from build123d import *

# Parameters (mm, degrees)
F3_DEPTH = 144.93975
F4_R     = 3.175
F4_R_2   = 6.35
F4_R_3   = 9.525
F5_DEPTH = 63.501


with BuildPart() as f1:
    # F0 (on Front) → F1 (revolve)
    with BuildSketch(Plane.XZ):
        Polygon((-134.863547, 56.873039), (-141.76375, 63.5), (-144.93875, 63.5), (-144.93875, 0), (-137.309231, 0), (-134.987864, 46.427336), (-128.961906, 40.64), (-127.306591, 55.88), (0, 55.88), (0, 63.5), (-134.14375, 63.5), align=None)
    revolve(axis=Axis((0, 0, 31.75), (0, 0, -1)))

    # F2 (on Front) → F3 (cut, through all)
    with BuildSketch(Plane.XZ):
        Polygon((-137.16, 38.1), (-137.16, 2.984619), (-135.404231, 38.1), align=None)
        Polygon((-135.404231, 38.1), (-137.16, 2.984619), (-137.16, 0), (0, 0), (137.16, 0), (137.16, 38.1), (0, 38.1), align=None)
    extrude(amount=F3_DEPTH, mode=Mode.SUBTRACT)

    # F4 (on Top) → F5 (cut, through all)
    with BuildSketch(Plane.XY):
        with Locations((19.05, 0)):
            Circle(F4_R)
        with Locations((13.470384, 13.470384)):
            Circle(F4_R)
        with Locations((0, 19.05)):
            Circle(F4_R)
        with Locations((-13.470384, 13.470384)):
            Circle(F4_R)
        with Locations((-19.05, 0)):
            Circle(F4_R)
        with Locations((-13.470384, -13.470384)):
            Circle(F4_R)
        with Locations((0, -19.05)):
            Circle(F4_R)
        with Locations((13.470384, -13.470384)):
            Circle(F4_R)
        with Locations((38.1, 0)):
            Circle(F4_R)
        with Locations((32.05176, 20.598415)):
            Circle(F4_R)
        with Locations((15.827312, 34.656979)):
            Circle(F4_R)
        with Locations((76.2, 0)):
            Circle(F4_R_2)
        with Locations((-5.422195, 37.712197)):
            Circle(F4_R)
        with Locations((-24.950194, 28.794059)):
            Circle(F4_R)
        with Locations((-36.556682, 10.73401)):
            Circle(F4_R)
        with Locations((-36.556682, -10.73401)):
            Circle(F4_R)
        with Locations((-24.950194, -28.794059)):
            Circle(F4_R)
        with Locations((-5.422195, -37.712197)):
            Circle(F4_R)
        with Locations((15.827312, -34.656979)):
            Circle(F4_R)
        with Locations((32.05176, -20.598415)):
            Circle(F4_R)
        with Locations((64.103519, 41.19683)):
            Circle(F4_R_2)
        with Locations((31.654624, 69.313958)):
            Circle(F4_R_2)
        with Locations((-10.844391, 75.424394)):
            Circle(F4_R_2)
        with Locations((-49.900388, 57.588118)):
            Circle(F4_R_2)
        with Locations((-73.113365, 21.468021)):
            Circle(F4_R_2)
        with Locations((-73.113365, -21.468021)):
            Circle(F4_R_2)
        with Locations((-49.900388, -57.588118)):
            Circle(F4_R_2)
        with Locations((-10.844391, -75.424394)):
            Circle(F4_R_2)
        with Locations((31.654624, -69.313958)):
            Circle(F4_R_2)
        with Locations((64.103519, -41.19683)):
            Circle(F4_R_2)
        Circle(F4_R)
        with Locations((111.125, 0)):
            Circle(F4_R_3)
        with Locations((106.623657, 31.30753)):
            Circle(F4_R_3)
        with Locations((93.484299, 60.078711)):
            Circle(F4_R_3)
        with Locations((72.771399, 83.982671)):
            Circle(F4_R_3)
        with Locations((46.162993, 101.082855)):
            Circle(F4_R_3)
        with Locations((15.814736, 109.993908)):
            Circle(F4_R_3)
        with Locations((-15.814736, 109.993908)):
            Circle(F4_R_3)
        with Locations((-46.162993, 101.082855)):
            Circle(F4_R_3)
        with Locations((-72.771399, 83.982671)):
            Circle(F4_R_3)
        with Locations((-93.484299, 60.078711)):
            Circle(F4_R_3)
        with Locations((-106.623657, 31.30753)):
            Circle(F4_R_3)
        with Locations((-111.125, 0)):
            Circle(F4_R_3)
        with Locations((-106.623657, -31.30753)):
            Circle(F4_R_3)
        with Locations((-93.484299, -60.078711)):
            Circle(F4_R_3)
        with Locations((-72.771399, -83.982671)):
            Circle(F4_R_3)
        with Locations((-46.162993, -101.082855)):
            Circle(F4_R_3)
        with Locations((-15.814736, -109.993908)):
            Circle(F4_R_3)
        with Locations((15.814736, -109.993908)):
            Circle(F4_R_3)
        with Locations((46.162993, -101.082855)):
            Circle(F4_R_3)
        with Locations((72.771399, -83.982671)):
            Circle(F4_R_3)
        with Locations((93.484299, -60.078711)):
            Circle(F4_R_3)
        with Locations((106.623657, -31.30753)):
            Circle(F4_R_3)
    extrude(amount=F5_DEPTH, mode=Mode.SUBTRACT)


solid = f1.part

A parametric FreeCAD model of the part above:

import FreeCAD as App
import Part
import Sketcher
from FreeCAD import Vector
Q = App.Units.Quantity


def add_polygon(sketch, points):
    """Adds a closed chain of lines whose ends are joined by coincident constraints."""
    first, n = sketch.GeometryCount, len(points)
    for a, b in zip(points, points[1:] + points[:1]):
        sketch.addGeometry(Part.LineSegment(App.Vector(*a, 0), App.Vector(*b, 0)), False)
    for i in range(n):
        sketch.addConstraint(Sketcher.Constraint("Coincident", first + i, 2, first + (i + 1) % n, 1))

doc = App.newDocument("Part")
body = doc.addObject("PartDesign::Body", "Body")

# Sketch on XZ plane
sketch1 = body.newObject("Sketcher::SketchObject", "Sketch")
sketch1.AttachmentSupport = (doc.getObject("XZ_Plane"), [""])
sketch1.MapMode = "FlatFace"
add_polygon(sketch1, [(-134.9, 56.9), (-141.8, 63.5), (-144.9, 63.5), (-144.9, 0), (-137.3, 0), (-135, 46.4), (-129, 40.6), (-127.3, 55.9), (0, 55.9), (0, 63.5), (-134.1, 63.5)])  # lines 0-10
sketch1.addConstraint([
    Sketcher.Constraint("Horizontal", 1),
    Sketcher.Constraint("Vertical", 2),
    Sketcher.Constraint("Horizontal", 3),
    Sketcher.Constraint("Horizontal", 7),
    Sketcher.Constraint("Vertical", 8),
    Sketcher.Constraint("Horizontal", 9),
    Sketcher.Constraint("PointOnObject", 2, 2, -1),
    Sketcher.Constraint("PointOnObject", 7, 2, -2),
    Sketcher.Constraint("Parallel", 0, 5),
    Sketcher.Constraint("Parallel", 6, 10),
    Sketcher.Constraint("Horizontal", 1, 2, 8, 2),
    Sketcher.Constraint("DistanceY", 2, 2, 2, 1, Q("2.5 in")),
    Sketcher.Constraint("DistanceY", 8, 1, 8, 2, Q("0.3 in")),
    Sketcher.Constraint("DistanceY", -1, 1, 5, 2, Q("1.6 in")),
    Sketcher.Constraint("DistanceX", 0, 2, 9, 2, Q("0.3 in")),
    Sketcher.Constraint("DistanceX", 1, 2, 1, 1, Q("0.125 in")),
    Sketcher.Constraint("DistanceX", 9, 2, 9, 1, Q("5.28125 in")),
    Sketcher.Constraint("Distance", 0, Q("9.567101 mm")),
    Sketcher.Constraint("DistanceX", 3, 1, 3, 2, Q("7.629519 mm")),
    Sketcher.Constraint("DistanceX", 7, 1, 7, 2, Q("127.306591 mm")),
    Sketcher.Constraint("DistanceY", -1, 1, 10, 2, Q("56.873039 mm")),
    Sketcher.Constraint("DistanceX", 4, 2, 5, 2, Q("6.025958 mm")),
])
revolution = body.newObject("PartDesign::Revolution", "Revolution")
revolution.Profile = sketch1
revolution.ReferenceAxis = (sketch1, ["V_Axis"])
revolution.Angle = 360

# Sketch on XZ plane
sketch2 = body.newObject("Sketcher::SketchObject", "Sketch001")
sketch2.AttachmentSupport = (doc.getObject("XZ_Plane"), [""])
sketch2.MapMode = "FlatFace"
add_polygon(sketch2, [(-137, 38), (-137, 0), (137, 0), (137, 38)])  # lines 0-3
sketch2.addConstraint([
    Sketcher.Constraint("Vertical", 0),
    Sketcher.Constraint("Horizontal", 1),
    Sketcher.Constraint("Vertical", 2),
    Sketcher.Constraint("Horizontal", 3),
    Sketcher.Constraint("Symmetric", 0, 2, 1, 2, -1, 1),
    Sketcher.Constraint("DistanceX", 1, 1, 1, 2, Q("10.8 in")),
    Sketcher.Constraint("DistanceY", 0, 2, 0, 1, Q("1.5 in")),
])
pocket1 = body.newObject("PartDesign::Pocket", "Pocket")
pocket1.Profile = sketch2
pocket1.Type = "ThroughAll"
pocket1.Reversed = True

# Sketch on XY plane
sketch3 = body.newObject("Sketcher::SketchObject", "Sketch002")
sketch3.AttachmentSupport = (doc.getObject("XY_Plane"), [""])
sketch3.MapMode = "FlatFace"
sketch3.addGeometry([
    Part.Circle(Vector(19.1, 0, 0), Vector(0, 0, 1), 3.2),  # 0
    Part.Circle(Vector(13.5, 13.5, 0), Vector(0, 0, 1), 3.2),  # 1
    Part.Circle(Vector(0, 19.1, 0), Vector(0, 0, 1), 3.2),  # 2
    Part.Circle(Vector(-13.5, 13.5, 0), Vector(0, 0, 1), 3.2),  # 3
    Part.Circle(Vector(-19.1, 0, 0), Vector(0, 0, 1), 3.2),  # 4
    Part.Circle(Vector(-13.5, -13.5, 0), Vector(0, 0, 1), 3.2),  # 5
    Part.Circle(Vector(0, -19.1, 0), Vector(0, 0, 1), 3.2),  # 6
    Part.Circle(Vector(13.5, -13.5, 0), Vector(0, 0, 1), 3.2),  # 7
    Part.Circle(Vector(38.1, 0, 0), Vector(0, 0, 1), 3.2),  # 8
    Part.Circle(Vector(32.1, 20.6, 0), Vector(0, 0, 1), 3.2),  # 9
    Part.Circle(Vector(15.8, 34.7, 0), Vector(0, 0, 1), 3.2),  # 10
    Part.Circle(Vector(76.2, 0, 0), Vector(0, 0, 1), 6.3),  # 11
    Part.Circle(Vector(-5.4, 37.7, 0), Vector(0, 0, 1), 3.2),  # 12
    Part.Circle(Vector(-25, 28.8, 0), Vector(0, 0, 1), 3.2),  # 13
    Part.Circle(Vector(-36.6, 10.7, 0), Vector(0, 0, 1), 3.2),  # 14
    Part.Circle(Vector(-36.6, -10.7, 0), Vector(0, 0, 1), 3.2),  # 15
    Part.Circle(Vector(-25, -28.8, 0), Vector(0, 0, 1), 3.2),  # 16
    Part.Circle(Vector(-5.4, -37.7, 0), Vector(0, 0, 1), 3.2),  # 17
    Part.Circle(Vector(15.8, -34.7, 0), Vector(0, 0, 1), 3.2),  # 18
    Part.Circle(Vector(32.1, -20.6, 0), Vector(0, 0, 1), 3.2),  # 19
    Part.Circle(Vector(64.1, 41.2, 0), Vector(0, 0, 1), 6.3),  # 20
    Part.Circle(Vector(31.7, 69.3, 0), Vector(0, 0, 1), 6.3),  # 21
    Part.Circle(Vector(-10.8, 75.4, 0), Vector(0, 0, 1), 6.3),  # 22
    Part.Circle(Vector(-49.9, 57.6, 0), Vector(0, 0, 1), 6.3),  # 23
    Part.Circle(Vector(-73.1, 21.5, 0), Vector(0, 0, 1), 6.3),  # 24
    Part.Circle(Vector(-73.1, -21.5, 0), Vector(0, 0, 1), 6.3),  # 25
    Part.Circle(Vector(-49.9, -57.6, 0), Vector(0, 0, 1), 6.3),  # 26
    Part.Circle(Vector(-10.8, -75.4, 0), Vector(0, 0, 1), 6.3),  # 27
    Part.Circle(Vector(31.7, -69.3, 0), Vector(0, 0, 1), 6.3),  # 28
    Part.Circle(Vector(64.1, -41.2, 0), Vector(0, 0, 1), 6.3),  # 29
    Part.Circle(Vector(0, 0, 0), Vector(0, 0, 1), 3.2),  # 30
    Part.Circle(Vector(111.1, 0, 0), Vector(0, 0, 1), 9.5),  # 31
    Part.Circle(Vector(106.6, 31.3, 0), Vector(0, 0, 1), 9.5),  # 32
    Part.Circle(Vector(93.5, 60.1, 0), Vector(0, 0, 1), 9.5),  # 33
    Part.Circle(Vector(72.8, 84, 0), Vector(0, 0, 1), 9.5),  # 34
    Part.Circle(Vector(46.2, 101.1, 0), Vector(0, 0, 1), 9.5),  # 35
    Part.Circle(Vector(15.8, 110, 0), Vector(0, 0, 1), 9.5),  # 36
    Part.Circle(Vector(-15.8, 110, 0), Vector(0, 0, 1), 9.5),  # 37
    Part.Circle(Vector(-46.2, 101.1, 0), Vector(0, 0, 1), 9.5),  # 38
    Part.Circle(Vector(-72.8, 84, 0), Vector(0, 0, 1), 9.5),  # 39
    Part.Circle(Vector(-93.5, 60.1, 0), Vector(0, 0, 1), 9.5),  # 40
    Part.Circle(Vector(-106.6, 31.3, 0), Vector(0, 0, 1), 9.5),  # 41
    Part.Circle(Vector(-111.1, 0, 0), Vector(0, 0, 1), 9.5),  # 42
    Part.Circle(Vector(-106.6, -31.3, 0), Vector(0, 0, 1), 9.5),  # 43
    Part.Circle(Vector(-93.5, -60.1, 0), Vector(0, 0, 1), 9.5),  # 44
    Part.Circle(Vector(-72.8, -84, 0), Vector(0, 0, 1), 9.5),  # 45
    Part.Circle(Vector(-46.2, -101.1, 0), Vector(0, 0, 1), 9.5),  # 46
    Part.Circle(Vector(-15.8, -110, 0), Vector(0, 0, 1), 9.5),  # 47
    Part.Circle(Vector(15.8, -110, 0), Vector(0, 0, 1), 9.5),  # 48
    Part.Circle(Vector(46.2, -101.1, 0), Vector(0, 0, 1), 9.5),  # 49
    Part.Circle(Vector(72.8, -84, 0), Vector(0, 0, 1), 9.5),  # 50
    Part.Circle(Vector(93.5, -60.1, 0), Vector(0, 0, 1), 9.5),  # 51
    Part.Circle(Vector(106.6, -31.3, 0), Vector(0, 0, 1), 9.5),  # 52
], False)
sketch3.addConstraint([
    Sketcher.Constraint("Coincident", 30, 3, -1, 1),
    Sketcher.Constraint("Equal", 0, 1),
    Sketcher.Constraint("Equal", 1, 2),
    Sketcher.Constraint("Equal", 2, 3),
    Sketcher.Constraint("Equal", 3, 4),
    Sketcher.Constraint("Equal", 4, 5),
    Sketcher.Constraint("Equal", 5, 6),
    Sketcher.Constraint("Equal", 6, 7),
    Sketcher.Constraint("Equal", 7, 8),
    Sketcher.Constraint("Equal", 8, 9),
    Sketcher.Constraint("Equal", 9, 10),
    Sketcher.Constraint("Equal", 10, 12),
    Sketcher.Constraint("Equal", 12, 13),
    Sketcher.Constraint("Equal", 13, 14),
    Sketcher.Constraint("Equal", 14, 15),
    Sketcher.Constraint("Equal", 15, 16),
    Sketcher.Constraint("Equal", 16, 17),
    Sketcher.Constraint("Equal", 17, 18),
    Sketcher.Constraint("Equal", 18, 19),
    Sketcher.Constraint("Equal", 11, 20),
    Sketcher.Constraint("Equal", 20, 21),
    Sketcher.Constraint("Equal", 21, 22),
    Sketcher.Constraint("Equal", 22, 23),
    Sketcher.Constraint("Equal", 23, 24),
    Sketcher.Constraint("Equal", 24, 25),
    Sketcher.Constraint("Equal", 25, 26),
    Sketcher.Constraint("Equal", 26, 27),
    Sketcher.Constraint("Equal", 27, 28),
    Sketcher.Constraint("Equal", 28, 29),
    Sketcher.Constraint("Equal", 19, 30),
    Sketcher.Constraint("Equal", 31, 32),
    Sketcher.Constraint("Equal", 32, 33),
    Sketcher.Constraint("Equal", 33, 34),
    Sketcher.Constraint("Equal", 34, 35),
    Sketcher.Constraint("Equal", 35, 36),
    Sketcher.Constraint("Equal", 36, 37),
    Sketcher.Constraint("Equal", 37, 38),
    Sketcher.Constraint("Equal", 38, 39),
    Sketcher.Constraint("Equal", 39, 40),
    Sketcher.Constraint("Equal", 40, 41),
    Sketcher.Constraint("Equal", 41, 42),
    Sketcher.Constraint("Equal", 42, 43),
    Sketcher.Constraint("Equal", 43, 44),
    Sketcher.Constraint("Equal", 44, 45),
    Sketcher.Constraint("Equal", 45, 46),
    Sketcher.Constraint("Equal", 46, 47),
    Sketcher.Constraint("Equal", 47, 48),
    Sketcher.Constraint("Equal", 48, 49),
    Sketcher.Constraint("Equal", 49, 50),
    Sketcher.Constraint("Equal", 50, 51),
    Sketcher.Constraint("Equal", 51, 52),
    Sketcher.Constraint("Symmetric", 0, 3, 4, 3, -1, 1),
    Sketcher.Constraint("Symmetric", 1, 3, 5, 3, -1, 1),
    Sketcher.Constraint("Symmetric", 2, 3, 6, 3, -1, 1),
    Sketcher.Constraint("Symmetric", 3, 3, 7, 3, -1, 1),
    Sketcher.Constraint("Symmetric", 31, 3, 42, 3, -1, 1),
    Sketcher.Constraint("Symmetric", 32, 3, 43, 3, -1, 1),
    Sketcher.Constraint("Symmetric", 33, 3, 44, 3, -1, 1),
    Sketcher.Constraint("Symmetric", 34, 3, 45, 3, -1, 1),
    Sketcher.Constraint("Symmetric", 35, 3, 46, 3, -1, 1),
    Sketcher.Constraint("Symmetric", 36, 3, 47, 3, -1, 1),
    Sketcher.Constraint("Symmetric", 37, 3, 48, 3, -1, 1),
    Sketcher.Constraint("Symmetric", 38, 3, 49, 3, -1, 1),
    Sketcher.Constraint("Symmetric", 39, 3, 50, 3, -1, 1),
    Sketcher.Constraint("Symmetric", 40, 3, 51, 3, -1, 1),
    Sketcher.Constraint("Symmetric", 41, 3, 52, 3, -1, 1),
    Sketcher.Constraint("Symmetric", 1, 3, 3, 3, -2),
    Sketcher.Constraint("Symmetric", 36, 3, 37, 3, -2),
    Sketcher.Constraint("Symmetric", 35, 3, 38, 3, -2),
    Sketcher.Constraint("Symmetric", 34, 3, 39, 3, -2),
    Sketcher.Constraint("Symmetric", 33, 3, 40, 3, -2),
    Sketcher.Constraint("Symmetric", 32, 3, 41, 3, -2),
    Sketcher.Constraint("Symmetric", 14, 3, 15, 3, -1),
    Sketcher.Constraint("Symmetric", 13, 3, 16, 3, -1),
    Sketcher.Constraint("Symmetric", 12, 3, 17, 3, -1),
    Sketcher.Constraint("Symmetric", 10, 3, 18, 3, -1),
    Sketcher.Constraint("Symmetric", 9, 3, 19, 3, -1),
    Sketcher.Constraint("Symmetric", 24, 3, 25, 3, -1),
    Sketcher.Constraint("Symmetric", 23, 3, 26, 3, -1),
    Sketcher.Constraint("Symmetric", 22, 3, 27, 3, -1),
    Sketcher.Constraint("Symmetric", 21, 3, 28, 3, -1),
    Sketcher.Constraint("Symmetric", 20, 3, 29, 3, -1),
    Sketcher.Constraint("PointOnObject", 0, 3, -1),
    Sketcher.Constraint("PointOnObject", 2, 3, -2),
    Sketcher.Constraint("PointOnObject", 8, 3, -1),
    Sketcher.Constraint("PointOnObject", 11, 3, -1),
    Sketcher.Constraint("PointOnObject", 31, 3, -1),
    Sketcher.Constraint("Diameter", 11, Q("0.5 in")),
    Sketcher.Constraint("Diameter", 0, Q("0.25 in")),
    Sketcher.Constraint("Diameter", 31, Q("0.75 in")),
    Sketcher.Constraint("DistanceX", -1, 1, 11, 3, Q("3 in")),
    Sketcher.Constraint("DistanceX", -1, 1, 8, 3, Q("1.5 in")),
    Sketcher.Constraint("DistanceX", 4, 3, 0, 3, Q("1.5 in")),
    Sketcher.Constraint("DistanceY", -1, 1, 2, 3, Q("0.75 in")),
    Sketcher.Constraint("DistanceX", -1, 1, 31, 3, Q("4.375 in")),
    Sketcher.Constraint("DistanceX", -1, 1, 33, 3, Q("93.484299 mm")),
    Sketcher.Constraint("DistanceX", -1, 1, 34, 3, Q("72.771399 mm")),
    Sketcher.Constraint("DistanceY", 7, 3, 9, 3, Q("34.068799 mm")),
    Sketcher.Constraint("DistanceX", 13, 3, 12, 3, Q("19.527999 mm")),
    Sketcher.Constraint("DistanceX", 14, 3, 3, 3, Q("23.086298 mm")),
    Sketcher.Constraint("DistanceY", 32, 3, 20, 3, Q("9.8893 mm")),
    Sketcher.Constraint("DistanceX", 38, 3, 22, 3, Q("35.318602 mm")),
    Sketcher.Constraint("DistanceX", 38, 3, 13, 3, Q("21.212799 mm")),
    Sketcher.Constraint("DistanceX", -1, 1, 9, 3, Q("32.05176 mm")),
    Sketcher.Constraint("DistanceX", -1, 1, 10, 3, Q("15.827312 mm")),
    Sketcher.Constraint("DistanceY", -1, 1, 10, 3, Q("34.656979 mm")),
    Sketcher.Constraint("DistanceY", -1, 1, 13, 3, Q("28.794059 mm")),
    Sketcher.Constraint("DistanceY", -1, 1, 14, 3, Q("10.73401 mm")),
    Sketcher.Constraint("DistanceX", -1, 1, 20, 3, Q("64.103519 mm")),
    Sketcher.Constraint("DistanceY", -1, 1, 20, 3, Q("41.19683 mm")),
    Sketcher.Constraint("DistanceY", -1, 1, 21, 3, Q("69.313958 mm")),
    Sketcher.Constraint("DistanceX", 22, 3, -1, 1, Q("10.844391 mm")),
    Sketcher.Constraint("DistanceY", -1, 1, 24, 3, Q("21.468021 mm")),
    Sketcher.Constraint("DistanceY", -1, 1, 33, 3, Q("60.078711 mm")),
    Sketcher.Constraint("DistanceY", -1, 1, 34, 3, Q("83.982671 mm")),
    Sketcher.Constraint("DistanceY", -1, 1, 36, 3, Q("109.993908 mm")),
    Sketcher.Constraint("DistanceY", 1, 3, 9, 3, Q("7.128031 mm")),
    Sketcher.Constraint("DistanceY", 10, 3, 12, 3, Q("3.055218 mm")),
    Sketcher.Constraint("DistanceX", 3, 3, 12, 3, Q("8.048189 mm")),
    Sketcher.Constraint("DistanceX", 10, 3, 21, 3, Q("15.827312 mm")),
    Sketcher.Constraint("DistanceY", 13, 3, 23, 3, Q("28.794059 mm")),
    Sketcher.Constraint("DistanceX", 24, 3, 13, 3, Q("48.163171 mm")),
    Sketcher.Constraint("DistanceX", 33, 3, 32, 3, Q("13.139358 mm")),
    Sketcher.Constraint("DistanceY", 22, 3, 35, 3, Q("25.658461 mm")),
    Sketcher.Constraint("DistanceX", 12, 3, 36, 3, Q("21.236931 mm")),
    Sketcher.Constraint("DistanceX", 23, 3, 37, 3, Q("34.085652 mm")),
    Sketcher.Constraint("DistanceY", -1, 1, 22, 3, Q("75.424394 mm")),
])
pocket2 = body.newObject("PartDesign::Pocket", "Pocket001")
pocket2.Profile = sketch3
pocket2.Type = "ThroughAll"
pocket2.Reversed = True

doc.recompute()
